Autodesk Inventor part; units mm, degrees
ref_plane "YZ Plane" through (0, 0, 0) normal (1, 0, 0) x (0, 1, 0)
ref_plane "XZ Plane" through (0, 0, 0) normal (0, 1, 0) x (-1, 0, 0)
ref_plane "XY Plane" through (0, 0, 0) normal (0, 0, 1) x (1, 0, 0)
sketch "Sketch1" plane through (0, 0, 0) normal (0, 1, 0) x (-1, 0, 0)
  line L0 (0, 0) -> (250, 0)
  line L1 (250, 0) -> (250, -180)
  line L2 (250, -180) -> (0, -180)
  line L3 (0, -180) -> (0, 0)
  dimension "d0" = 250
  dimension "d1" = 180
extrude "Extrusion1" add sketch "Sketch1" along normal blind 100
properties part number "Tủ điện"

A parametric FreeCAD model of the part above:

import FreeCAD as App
import Part
import Sketcher


def add_polygon(sketch, points):
    """Adds a closed chain of lines whose ends are joined by coincident constraints."""
    first, n = sketch.GeometryCount, len(points)
    for a, b in zip(points, points[1:] + points[:1]):
        sketch.addGeometry(Part.LineSegment(App.Vector(*a, 0), App.Vector(*b, 0)), False)
    for i in range(n):
        sketch.addConstraint(Sketcher.Constraint("Coincident", first + i, 2, first + (i + 1) % n, 1))

doc = App.newDocument("Part")
params = doc.addObject("Spreadsheet::Sheet", "Params")
for row, (alias, value) in enumerate([
    ("sketch1_width", "250 mm"),
    ("sketch1_height", "180 mm"),
    ("pad1_length", "100 mm"),
], start=1):
    params.set(f"A{row}", alias)
    params.set(f"B{row}", "=" + value)
    params.setAlias(f"B{row}", alias)

body = doc.addObject("PartDesign::Body", "Body")

sketch1 = doc.addObject("Sketcher::SketchObject", "Sketch")
body.addObject(sketch1)
sketch1.AttachmentSupport = (doc.XZ_Plane, [""])
sketch1.MapMode = "FlatFace"
add_polygon(sketch1, [(-250, 0), (0, 0), (0, -180), (-250, -180)])
sketch1.addConstraint(Sketcher.Constraint("Horizontal", 0))
sketch1.addConstraint(Sketcher.Constraint("Vertical", 1))
sketch1.addConstraint(Sketcher.Constraint("Horizontal", 2))
sketch1.addConstraint(Sketcher.Constraint("Vertical", 3))
sketch1.addConstraint(Sketcher.Constraint("Coincident", 0, 2, -1, 1))
sketch1.addConstraint(Sketcher.Constraint("DistanceX", 0, 1, 0, 2, 250.0))
sketch1.addConstraint(Sketcher.Constraint("DistanceY", 1, 2, 1, 1, 180.0))
sketch1.setExpression("Constraints[9]", "Params.sketch1_width")
sketch1.setExpression("Constraints[10]", "Params.sketch1_height")
pad1 = doc.addObject("PartDesign::Pad", "Pad")
body.addObject(pad1)
pad1.Profile = sketch1
pad1.setExpression("Length", "Params.pad1_length")
pad1.Reversed = True

doc.recompute()
